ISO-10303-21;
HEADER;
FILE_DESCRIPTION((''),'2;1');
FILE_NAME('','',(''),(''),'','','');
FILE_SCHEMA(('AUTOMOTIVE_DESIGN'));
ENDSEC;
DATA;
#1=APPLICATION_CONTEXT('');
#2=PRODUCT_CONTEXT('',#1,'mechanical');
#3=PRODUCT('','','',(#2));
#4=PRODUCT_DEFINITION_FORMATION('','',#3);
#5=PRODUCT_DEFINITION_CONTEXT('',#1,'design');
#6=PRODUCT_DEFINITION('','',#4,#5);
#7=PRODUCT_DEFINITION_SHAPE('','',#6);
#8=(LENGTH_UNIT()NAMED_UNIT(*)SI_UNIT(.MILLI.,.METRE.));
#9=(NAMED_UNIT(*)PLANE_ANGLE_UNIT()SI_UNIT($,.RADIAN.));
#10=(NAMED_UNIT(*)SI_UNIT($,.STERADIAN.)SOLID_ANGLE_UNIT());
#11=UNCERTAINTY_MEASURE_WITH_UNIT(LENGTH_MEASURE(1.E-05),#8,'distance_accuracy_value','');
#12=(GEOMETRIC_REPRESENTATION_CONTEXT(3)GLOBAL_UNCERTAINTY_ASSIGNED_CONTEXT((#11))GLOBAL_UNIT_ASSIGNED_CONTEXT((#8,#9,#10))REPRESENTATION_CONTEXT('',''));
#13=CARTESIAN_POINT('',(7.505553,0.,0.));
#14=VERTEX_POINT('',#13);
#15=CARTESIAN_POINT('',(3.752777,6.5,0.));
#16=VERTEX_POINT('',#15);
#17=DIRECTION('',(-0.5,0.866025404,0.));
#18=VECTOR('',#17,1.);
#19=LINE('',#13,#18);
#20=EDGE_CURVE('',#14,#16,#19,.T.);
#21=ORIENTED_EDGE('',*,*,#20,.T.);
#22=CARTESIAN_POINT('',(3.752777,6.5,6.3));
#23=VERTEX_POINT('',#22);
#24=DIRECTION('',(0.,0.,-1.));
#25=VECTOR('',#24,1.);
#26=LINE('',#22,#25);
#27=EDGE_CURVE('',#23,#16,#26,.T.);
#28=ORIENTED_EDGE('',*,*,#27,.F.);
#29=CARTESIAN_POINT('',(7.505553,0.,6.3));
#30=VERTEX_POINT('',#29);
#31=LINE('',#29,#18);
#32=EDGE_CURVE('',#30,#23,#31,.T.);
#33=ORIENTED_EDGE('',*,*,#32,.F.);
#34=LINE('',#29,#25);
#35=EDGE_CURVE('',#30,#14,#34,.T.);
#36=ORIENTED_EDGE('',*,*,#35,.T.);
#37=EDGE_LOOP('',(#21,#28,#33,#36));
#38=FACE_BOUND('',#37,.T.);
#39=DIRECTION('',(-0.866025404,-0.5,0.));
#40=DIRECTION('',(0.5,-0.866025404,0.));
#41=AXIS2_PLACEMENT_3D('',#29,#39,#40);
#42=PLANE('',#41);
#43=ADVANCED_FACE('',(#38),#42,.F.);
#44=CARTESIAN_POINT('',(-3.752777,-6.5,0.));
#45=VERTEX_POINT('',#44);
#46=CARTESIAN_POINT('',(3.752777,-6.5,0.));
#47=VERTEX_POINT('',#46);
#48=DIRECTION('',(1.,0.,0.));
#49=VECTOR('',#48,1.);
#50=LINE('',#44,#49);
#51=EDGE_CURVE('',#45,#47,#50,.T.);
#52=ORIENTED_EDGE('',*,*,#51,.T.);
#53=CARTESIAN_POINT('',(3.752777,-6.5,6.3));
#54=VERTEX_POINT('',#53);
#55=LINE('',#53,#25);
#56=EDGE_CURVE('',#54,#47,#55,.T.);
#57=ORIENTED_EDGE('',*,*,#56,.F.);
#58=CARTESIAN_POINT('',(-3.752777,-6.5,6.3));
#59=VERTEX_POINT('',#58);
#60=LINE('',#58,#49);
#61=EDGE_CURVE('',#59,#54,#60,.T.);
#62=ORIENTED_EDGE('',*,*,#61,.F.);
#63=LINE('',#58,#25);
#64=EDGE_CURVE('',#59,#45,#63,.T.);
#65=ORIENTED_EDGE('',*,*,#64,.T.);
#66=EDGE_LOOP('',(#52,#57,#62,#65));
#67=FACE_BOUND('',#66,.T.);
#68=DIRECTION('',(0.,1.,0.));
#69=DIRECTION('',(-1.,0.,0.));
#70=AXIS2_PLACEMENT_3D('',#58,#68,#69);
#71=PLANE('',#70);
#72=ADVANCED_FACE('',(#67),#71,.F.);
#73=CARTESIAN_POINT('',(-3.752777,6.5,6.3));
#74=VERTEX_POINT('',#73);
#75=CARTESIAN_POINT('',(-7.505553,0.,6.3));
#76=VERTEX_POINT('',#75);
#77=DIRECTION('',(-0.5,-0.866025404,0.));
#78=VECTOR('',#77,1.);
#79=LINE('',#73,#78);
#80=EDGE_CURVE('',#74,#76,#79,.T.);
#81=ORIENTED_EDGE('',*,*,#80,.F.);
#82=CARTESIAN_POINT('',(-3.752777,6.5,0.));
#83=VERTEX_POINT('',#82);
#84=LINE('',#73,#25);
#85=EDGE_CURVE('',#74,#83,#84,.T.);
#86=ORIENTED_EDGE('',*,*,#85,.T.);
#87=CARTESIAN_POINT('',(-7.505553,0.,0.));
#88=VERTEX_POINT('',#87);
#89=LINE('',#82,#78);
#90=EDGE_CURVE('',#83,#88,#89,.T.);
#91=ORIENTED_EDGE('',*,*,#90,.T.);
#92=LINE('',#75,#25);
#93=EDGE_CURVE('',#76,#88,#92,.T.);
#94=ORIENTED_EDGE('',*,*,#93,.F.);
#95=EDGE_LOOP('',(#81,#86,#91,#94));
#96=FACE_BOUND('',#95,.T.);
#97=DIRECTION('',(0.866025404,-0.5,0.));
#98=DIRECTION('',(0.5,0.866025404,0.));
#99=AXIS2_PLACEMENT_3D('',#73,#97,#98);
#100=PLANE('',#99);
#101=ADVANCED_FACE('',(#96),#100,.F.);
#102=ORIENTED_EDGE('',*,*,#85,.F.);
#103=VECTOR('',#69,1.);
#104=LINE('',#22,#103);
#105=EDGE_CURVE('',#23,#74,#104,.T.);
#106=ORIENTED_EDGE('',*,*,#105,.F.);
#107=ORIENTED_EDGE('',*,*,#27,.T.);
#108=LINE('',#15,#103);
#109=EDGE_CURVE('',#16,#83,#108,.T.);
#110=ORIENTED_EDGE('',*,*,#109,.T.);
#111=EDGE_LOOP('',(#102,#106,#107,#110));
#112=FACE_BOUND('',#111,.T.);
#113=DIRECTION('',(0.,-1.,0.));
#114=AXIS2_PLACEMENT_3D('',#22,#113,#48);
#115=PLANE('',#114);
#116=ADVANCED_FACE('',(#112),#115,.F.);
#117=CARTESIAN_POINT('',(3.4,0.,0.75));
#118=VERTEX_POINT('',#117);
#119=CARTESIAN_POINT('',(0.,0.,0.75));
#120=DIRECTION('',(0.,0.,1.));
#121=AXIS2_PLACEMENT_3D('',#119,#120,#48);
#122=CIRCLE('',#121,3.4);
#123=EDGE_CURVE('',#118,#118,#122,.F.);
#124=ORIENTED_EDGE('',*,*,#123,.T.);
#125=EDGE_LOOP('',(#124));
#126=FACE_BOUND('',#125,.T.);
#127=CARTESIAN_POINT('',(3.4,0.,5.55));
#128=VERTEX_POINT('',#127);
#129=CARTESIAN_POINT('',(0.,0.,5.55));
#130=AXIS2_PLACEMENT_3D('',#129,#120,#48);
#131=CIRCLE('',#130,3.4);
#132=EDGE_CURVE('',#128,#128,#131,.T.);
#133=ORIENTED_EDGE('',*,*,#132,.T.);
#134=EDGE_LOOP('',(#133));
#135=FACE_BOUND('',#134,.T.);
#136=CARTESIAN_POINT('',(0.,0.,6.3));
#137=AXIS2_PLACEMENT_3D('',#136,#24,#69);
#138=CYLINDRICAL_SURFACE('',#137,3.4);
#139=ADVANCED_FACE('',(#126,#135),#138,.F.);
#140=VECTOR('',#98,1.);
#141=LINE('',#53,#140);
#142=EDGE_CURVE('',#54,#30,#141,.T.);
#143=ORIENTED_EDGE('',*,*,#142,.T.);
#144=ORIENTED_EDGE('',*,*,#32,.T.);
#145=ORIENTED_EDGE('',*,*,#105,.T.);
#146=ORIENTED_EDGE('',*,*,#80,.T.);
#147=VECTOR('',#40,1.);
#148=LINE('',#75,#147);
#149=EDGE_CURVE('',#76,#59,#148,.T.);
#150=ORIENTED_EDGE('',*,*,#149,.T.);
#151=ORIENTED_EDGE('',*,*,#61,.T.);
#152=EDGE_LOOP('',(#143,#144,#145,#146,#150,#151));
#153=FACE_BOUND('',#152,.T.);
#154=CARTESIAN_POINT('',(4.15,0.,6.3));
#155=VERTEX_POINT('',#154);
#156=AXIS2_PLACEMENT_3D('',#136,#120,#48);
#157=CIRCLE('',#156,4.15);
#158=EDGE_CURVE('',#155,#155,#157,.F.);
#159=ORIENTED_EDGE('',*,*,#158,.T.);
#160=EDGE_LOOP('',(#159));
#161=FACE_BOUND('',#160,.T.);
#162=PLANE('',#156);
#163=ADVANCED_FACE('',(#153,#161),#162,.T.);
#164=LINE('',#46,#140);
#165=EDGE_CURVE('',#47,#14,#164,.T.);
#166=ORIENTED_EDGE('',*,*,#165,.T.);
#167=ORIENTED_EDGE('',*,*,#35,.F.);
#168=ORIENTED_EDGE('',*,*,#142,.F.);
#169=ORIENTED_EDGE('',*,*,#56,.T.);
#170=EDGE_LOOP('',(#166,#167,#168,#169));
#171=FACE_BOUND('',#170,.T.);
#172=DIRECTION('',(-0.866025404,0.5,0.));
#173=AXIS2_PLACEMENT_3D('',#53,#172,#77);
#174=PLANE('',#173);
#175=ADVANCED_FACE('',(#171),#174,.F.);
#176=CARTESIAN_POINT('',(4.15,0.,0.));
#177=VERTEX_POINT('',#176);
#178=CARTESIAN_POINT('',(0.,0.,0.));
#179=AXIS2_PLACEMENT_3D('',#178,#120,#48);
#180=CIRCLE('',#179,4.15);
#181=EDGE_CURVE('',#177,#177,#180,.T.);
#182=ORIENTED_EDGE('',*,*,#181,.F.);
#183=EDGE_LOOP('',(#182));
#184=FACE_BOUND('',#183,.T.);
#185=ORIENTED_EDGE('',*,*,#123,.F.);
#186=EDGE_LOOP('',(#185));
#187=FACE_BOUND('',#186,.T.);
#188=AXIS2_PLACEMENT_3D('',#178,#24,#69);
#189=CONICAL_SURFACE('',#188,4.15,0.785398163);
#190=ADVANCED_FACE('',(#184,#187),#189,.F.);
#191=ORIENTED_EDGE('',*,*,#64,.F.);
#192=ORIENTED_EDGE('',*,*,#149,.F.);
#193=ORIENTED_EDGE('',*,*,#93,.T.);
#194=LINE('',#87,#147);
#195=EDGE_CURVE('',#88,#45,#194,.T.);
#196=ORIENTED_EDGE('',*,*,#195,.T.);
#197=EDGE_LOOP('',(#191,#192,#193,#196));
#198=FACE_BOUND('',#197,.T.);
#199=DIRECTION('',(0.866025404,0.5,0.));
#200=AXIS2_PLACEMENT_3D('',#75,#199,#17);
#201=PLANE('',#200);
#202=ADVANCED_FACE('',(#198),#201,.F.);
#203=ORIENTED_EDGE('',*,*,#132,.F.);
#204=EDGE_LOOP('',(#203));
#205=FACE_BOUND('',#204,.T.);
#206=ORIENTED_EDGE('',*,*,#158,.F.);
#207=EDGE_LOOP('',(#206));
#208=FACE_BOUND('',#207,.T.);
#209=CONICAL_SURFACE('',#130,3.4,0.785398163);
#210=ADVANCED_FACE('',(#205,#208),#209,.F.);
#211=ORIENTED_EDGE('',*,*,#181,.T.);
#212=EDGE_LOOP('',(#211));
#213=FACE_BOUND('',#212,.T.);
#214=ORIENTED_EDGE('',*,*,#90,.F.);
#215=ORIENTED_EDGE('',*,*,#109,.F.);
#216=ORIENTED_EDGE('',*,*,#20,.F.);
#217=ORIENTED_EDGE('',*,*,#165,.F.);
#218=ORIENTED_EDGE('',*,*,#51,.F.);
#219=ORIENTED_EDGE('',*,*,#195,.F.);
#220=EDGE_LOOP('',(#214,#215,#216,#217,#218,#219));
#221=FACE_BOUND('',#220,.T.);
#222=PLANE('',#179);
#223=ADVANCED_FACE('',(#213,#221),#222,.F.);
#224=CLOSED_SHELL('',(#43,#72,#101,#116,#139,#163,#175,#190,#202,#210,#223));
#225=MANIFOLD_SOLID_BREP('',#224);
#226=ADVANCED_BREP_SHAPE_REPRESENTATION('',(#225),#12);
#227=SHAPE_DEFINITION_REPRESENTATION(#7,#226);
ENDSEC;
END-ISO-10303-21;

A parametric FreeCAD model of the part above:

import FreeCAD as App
import Part
import Sketcher
from FreeCAD import Vector
Q = App.Units.Quantity


def edges_at(feature, points):
    """Names of the edges that pass closest to the given points."""
    edges = feature.Shape.Edges
    near = lambda p: min(range(len(edges)), key=lambda i: edges[i].distToShape(Part.Vertex(*p))[0])
    return sorted({f"Edge{near(p) + 1}" for p in points})


def add_polygon(sketch, points):
    """Adds a closed chain of lines whose ends are joined by coincident constraints."""
    first, n = sketch.GeometryCount, len(points)
    for a, b in zip(points, points[1:] + points[:1]):
        sketch.addGeometry(Part.LineSegment(App.Vector(*a, 0), App.Vector(*b, 0)), False)
    for i in range(n):
        sketch.addConstraint(Sketcher.Constraint("Coincident", first + i, 2, first + (i + 1) % n, 1))

doc = App.newDocument("Part")
body = doc.addObject("PartDesign::Body", "Body")

# Sketch on XY plane
sketch1 = doc.addObject("Sketcher::SketchObject", "Sketch")
body.addObject(sketch1)
sketch1.AttachmentSupport = (doc.XY_Plane, [""])
sketch1.MapMode = "FlatFace"
add_polygon(sketch1, [(7.5, 0), (3.8, 6.5), (-3.8, 6.5), (-7.5, 0), (-3.8, -6.5), (3.8, -6.5)])  # lines 0-5
sketch1.addGeometry(Part.Circle(Vector(0, 0, 0), Vector(0, 0, 1), 3.4), False)  # 6
sketch1.addConstraint(Sketcher.Constraint("Horizontal", 1))
sketch1.addConstraint(Sketcher.Constraint("Horizontal", 4))
sketch1.addConstraint(Sketcher.Constraint("Coincident", 6, 3, -1, 1))
sketch1.addConstraint(Sketcher.Constraint("Symmetric", 0, 2, 3, 2, -1, 1))
sketch1.addConstraint(Sketcher.Constraint("Symmetric", 2, 2, 5, 2, -1, 1))
sketch1.addConstraint(Sketcher.Constraint("PointOnObject", 2, 2, -1))
sketch1.addConstraint(Sketcher.Constraint("Parallel", 2, 5))
sketch1.addConstraint(Sketcher.Constraint("Vertical", 1, 2, 3, 2))
sketch1.addConstraint(Sketcher.Constraint("Diameter", 6, Q("6.8 mm")))
sketch1.addConstraint(Sketcher.Constraint("Angle", 0, Q("120 deg")))
sketch1.addConstraint(Sketcher.Constraint("DistanceY", 3, 2, 1, 2, Q("13 mm")))
sketch1.addConstraint(Sketcher.Constraint("DistanceX", 1, 2, 1, 1, Q("7.505554 mm")))
pad1 = doc.addObject("PartDesign::Pad", "Pad")
body.addObject(pad1)
pad1.Profile = sketch1
pad1.Length = 6.3
doc.recompute()

chamfer = doc.addObject("PartDesign::Chamfer", "Chamfer")
body.addObject(chamfer)
chamfer.Base = (pad1, edges_at(pad1, [(-3.4, 0, 0), (-3.4, 0, 6.3)]))
chamfer.Size = 0.75

doc.recompute()
